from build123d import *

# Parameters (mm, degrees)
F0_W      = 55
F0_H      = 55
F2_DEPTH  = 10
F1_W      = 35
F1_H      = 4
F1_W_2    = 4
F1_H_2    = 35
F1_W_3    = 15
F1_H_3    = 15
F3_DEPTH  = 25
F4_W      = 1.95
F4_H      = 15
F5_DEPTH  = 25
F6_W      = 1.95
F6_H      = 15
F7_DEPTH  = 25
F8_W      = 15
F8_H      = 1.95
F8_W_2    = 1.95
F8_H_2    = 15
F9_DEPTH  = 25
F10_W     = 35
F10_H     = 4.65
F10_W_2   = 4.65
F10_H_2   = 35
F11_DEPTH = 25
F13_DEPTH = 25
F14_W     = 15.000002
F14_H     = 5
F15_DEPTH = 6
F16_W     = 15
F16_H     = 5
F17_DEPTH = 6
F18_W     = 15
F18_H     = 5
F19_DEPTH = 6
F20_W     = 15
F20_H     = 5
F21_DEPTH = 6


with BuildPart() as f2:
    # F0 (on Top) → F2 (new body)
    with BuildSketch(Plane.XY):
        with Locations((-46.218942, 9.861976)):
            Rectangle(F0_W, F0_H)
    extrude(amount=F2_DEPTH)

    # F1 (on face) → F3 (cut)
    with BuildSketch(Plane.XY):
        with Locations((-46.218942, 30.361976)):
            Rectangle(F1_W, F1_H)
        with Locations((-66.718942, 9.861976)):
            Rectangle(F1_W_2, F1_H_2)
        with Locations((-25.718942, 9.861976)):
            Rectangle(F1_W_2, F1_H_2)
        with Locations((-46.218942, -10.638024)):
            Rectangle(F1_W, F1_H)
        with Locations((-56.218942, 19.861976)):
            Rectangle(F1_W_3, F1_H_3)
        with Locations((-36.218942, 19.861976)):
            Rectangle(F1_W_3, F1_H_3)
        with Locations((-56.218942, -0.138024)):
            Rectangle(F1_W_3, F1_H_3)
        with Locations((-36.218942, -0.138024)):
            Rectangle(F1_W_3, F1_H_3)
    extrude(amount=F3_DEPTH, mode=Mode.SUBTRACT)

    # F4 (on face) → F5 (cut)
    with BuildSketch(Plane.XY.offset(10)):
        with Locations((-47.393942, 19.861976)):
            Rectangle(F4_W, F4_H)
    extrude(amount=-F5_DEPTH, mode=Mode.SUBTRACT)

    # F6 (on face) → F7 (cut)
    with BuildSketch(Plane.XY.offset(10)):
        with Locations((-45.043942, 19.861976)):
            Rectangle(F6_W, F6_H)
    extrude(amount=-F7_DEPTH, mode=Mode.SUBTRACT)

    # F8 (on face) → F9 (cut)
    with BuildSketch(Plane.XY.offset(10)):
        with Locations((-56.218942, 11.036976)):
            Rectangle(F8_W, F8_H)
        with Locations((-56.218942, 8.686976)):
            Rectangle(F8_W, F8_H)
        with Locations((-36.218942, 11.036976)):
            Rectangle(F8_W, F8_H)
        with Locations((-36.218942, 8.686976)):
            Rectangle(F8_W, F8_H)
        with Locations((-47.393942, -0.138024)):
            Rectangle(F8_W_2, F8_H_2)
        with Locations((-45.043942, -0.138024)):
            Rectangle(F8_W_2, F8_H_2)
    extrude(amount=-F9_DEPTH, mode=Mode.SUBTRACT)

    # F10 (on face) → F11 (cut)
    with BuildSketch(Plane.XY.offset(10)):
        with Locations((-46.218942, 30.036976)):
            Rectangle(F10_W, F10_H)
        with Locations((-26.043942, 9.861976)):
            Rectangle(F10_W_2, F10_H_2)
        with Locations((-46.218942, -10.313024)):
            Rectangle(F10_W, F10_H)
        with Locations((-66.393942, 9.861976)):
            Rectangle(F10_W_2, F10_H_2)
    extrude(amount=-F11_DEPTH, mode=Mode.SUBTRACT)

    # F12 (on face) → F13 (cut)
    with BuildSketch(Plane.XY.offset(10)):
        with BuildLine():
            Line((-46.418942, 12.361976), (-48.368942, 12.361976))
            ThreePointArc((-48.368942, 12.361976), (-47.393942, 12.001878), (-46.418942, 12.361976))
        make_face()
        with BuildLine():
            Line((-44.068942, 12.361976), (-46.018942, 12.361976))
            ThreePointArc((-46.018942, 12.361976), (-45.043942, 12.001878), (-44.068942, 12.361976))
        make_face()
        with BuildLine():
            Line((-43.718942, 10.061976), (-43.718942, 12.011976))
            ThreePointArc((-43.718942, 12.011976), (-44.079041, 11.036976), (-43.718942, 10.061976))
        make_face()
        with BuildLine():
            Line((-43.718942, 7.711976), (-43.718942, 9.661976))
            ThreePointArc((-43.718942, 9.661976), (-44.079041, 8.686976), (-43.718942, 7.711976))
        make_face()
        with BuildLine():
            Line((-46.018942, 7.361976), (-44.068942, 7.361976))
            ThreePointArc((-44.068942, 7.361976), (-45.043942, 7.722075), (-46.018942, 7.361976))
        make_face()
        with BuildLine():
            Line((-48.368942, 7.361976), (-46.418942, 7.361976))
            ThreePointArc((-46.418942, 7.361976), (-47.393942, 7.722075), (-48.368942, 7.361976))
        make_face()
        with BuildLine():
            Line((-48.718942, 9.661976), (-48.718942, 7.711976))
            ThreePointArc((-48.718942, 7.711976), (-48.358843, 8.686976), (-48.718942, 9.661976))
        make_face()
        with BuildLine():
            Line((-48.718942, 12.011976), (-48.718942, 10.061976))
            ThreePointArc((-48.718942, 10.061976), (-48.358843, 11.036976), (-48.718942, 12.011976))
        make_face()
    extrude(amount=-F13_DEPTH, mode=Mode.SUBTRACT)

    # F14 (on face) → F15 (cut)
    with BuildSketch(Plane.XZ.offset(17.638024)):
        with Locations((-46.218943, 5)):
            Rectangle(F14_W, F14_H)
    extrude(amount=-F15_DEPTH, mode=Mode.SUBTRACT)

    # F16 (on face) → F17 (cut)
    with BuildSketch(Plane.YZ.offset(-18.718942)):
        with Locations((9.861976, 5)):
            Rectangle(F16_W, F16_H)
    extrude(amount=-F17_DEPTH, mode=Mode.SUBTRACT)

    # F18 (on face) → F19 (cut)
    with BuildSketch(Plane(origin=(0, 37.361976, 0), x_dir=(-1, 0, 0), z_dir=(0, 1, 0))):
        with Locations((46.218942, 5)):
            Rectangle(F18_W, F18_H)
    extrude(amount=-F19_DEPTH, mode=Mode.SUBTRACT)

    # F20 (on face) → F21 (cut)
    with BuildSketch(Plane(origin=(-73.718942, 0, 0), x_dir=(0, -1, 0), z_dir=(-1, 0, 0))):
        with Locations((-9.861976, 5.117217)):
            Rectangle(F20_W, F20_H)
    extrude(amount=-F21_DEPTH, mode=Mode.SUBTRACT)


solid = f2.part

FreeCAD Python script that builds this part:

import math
import FreeCAD as App
import Part
import Sketcher

V = App.Vector
Q = App.Units.Quantity

doc = App.newDocument("Part")
body = doc.addObject("PartDesign::Body", "Body")

sketch1 = body.newObject("Sketcher::SketchObject", "Sketch")
sketch1.AttachmentSupport = (doc.getObject("XY_Plane"), [""])
sketch1.MapMode = "FlatFace"
sketch1.addGeometry(Part.LineSegment(V(-74, 37, 0), V(-74, -18, 0)), False)
sketch1.addGeometry(Part.LineSegment(V(-74, -18, 0), V(-19, -18, 0)), False)
sketch1.addGeometry(Part.LineSegment(V(-19, -18, 0), V(-19, 37, 0)), False)
sketch1.addGeometry(Part.LineSegment(V(-19, 37, 0), V(-74, 37, 0)), False)
sketch1.addConstraint(Sketcher.Constraint("Coincident", 0, 2, 1, 1))
sketch1.addConstraint(Sketcher.Constraint("Coincident", 1, 2, 2, 1))
sketch1.addConstraint(Sketcher.Constraint("Coincident", 2, 2, 3, 1))
sketch1.addConstraint(Sketcher.Constraint("Coincident", 3, 2, 0, 1))
sketch1.addConstraint(Sketcher.Constraint("Vertical", 0))
sketch1.addConstraint(Sketcher.Constraint("Horizontal", 1))
sketch1.addConstraint(Sketcher.Constraint("Vertical", 2))
sketch1.addConstraint(Sketcher.Constraint("Horizontal", 3))
sketch1.addConstraint(Sketcher.Constraint("Equal", 3, 0))
sketch1.addConstraint(Sketcher.Constraint("DistanceX", 1, 1, 1, 2, Q("55 mm")))
sketch1.addConstraint(Sketcher.Constraint("DistanceX", 0, 2, -1, 1, Q("73.718942 mm")))
sketch1.addConstraint(Sketcher.Constraint("DistanceY", 0, 2, -1, 1, Q("17.638024 mm")))
pad1 = body.newObject("PartDesign::Pad", "Pad")
pad1.Profile = sketch1
pad1.Length = 10

sketch2 = body.newObject("Sketcher::SketchObject", "Sketch001")
sketch2.AttachmentSupport = (doc.getObject("XY_Plane"), [""])
sketch2.MapMode = "FlatFace"
sketch2.addGeometry(Part.LineSegment(V(-63.7, 32.4, 0), V(-63.7, 28.4, 0)), False)
sketch2.addGeometry(Part.LineSegment(V(-63.7, 28.4, 0), V(-28.7, 28.4, 0)), False)
sketch2.addGeometry(Part.LineSegment(V(-28.7, 28.4, 0), V(-28.7, 32.4, 0)), False)
sketch2.addGeometry(Part.LineSegment(V(-28.7, 32.4, 0), V(-63.7, 32.4, 0)), False)
sketch2.addGeometry(Part.LineSegment(V(-68.7, 27.4, 0), V(-68.7, -7.6, 0)), False)
sketch2.addGeometry(Part.LineSegment(V(-68.7, -7.6, 0), V(-64.7, -7.6, 0)), False)
sketch2.addGeometry(Part.LineSegment(V(-64.7, -7.6, 0), V(-64.7, 27.4, 0)), False)
sketch2.addGeometry(Part.LineSegment(V(-64.7, 27.4, 0), V(-68.7, 27.4, 0)), False)
sketch2.addGeometry(Part.LineSegment(V(-27.7, 27.4, 0), V(-27.7, -7.6, 0)), False)
sketch2.addGeometry(Part.LineSegment(V(-27.7, -7.6, 0), V(-23.7, -7.6, 0)), False)
sketch2.addGeometry(Part.LineSegment(V(-23.7, -7.6, 0), V(-23.7, 27.4, 0)), False)
sketch2.addGeometry(Part.LineSegment(V(-23.7, 27.4, 0), V(-27.7, 27.4, 0)), False)
sketch2.addGeometry(Part.LineSegment(V(-63.7, -8.6, 0), V(-63.7, -12.6, 0)), False)
sketch2.addGeometry(Part.LineSegment(V(-63.7, -12.6, 0), V(-28.7, -12.6, 0)), False)
sketch2.addGeometry(Part.LineSegment(V(-28.7, -12.6, 0), V(-28.7, -8.6, 0)), False)
sketch2.addGeometry(Part.LineSegment(V(-28.7, -8.6, 0), V(-63.7, -8.6, 0)), False)
sketch2.addGeometry(Part.LineSegment(V(-63.7, 27.4, 0), V(-63.7, 12.4, 0)), False)
sketch2.addGeometry(Part.LineSegment(V(-63.7, 12.4, 0), V(-48.7, 12.4, 0)), False)
sketch2.addGeometry(Part.LineSegment(V(-48.7, 12.4, 0), V(-48.7, 27.4, 0)), False)
sketch2.addGeometry(Part.LineSegment(V(-48.7, 27.4, 0), V(-63.7, 27.4, 0)), False)
sketch2.addGeometry(Part.LineSegment(V(-43.7, 27.4, 0), V(-43.7, 12.4, 0)), False)
sketch2.addGeometry(Part.LineSegment(V(-43.7, 12.4, 0), V(-28.7, 12.4, 0)), False)
sketch2.addGeometry(Part.LineSegment(V(-28.7, 12.4, 0), V(-28.7, 27.4, 0)), False)
sketch2.addGeometry(Part.LineSegment(V(-28.7, 27.4, 0), V(-43.7, 27.4, 0)), False)
sketch2.addGeometry(Part.LineSegment(V(-63.7, 7.4, 0), V(-63.7, -7.6, 0)), False)
sketch2.addGeometry(Part.LineSegment(V(-63.7, -7.6, 0), V(-48.7, -7.6, 0)), False)
sketch2.addGeometry(Part.LineSegment(V(-48.7, -7.6, 0), V(-48.7, 7.4, 0)), False)
sketch2.addGeometry(Part.LineSegment(V(-48.7, 7.4, 0), V(-63.7, 7.4, 0)), False)
sketch2.addGeometry(Part.LineSegment(V(-43.7, 7.4, 0), V(-43.7, -7.6, 0)), False)
sketch2.addGeometry(Part.LineSegment(V(-43.7, -7.6, 0), V(-28.7, -7.6, 0)), False)
sketch2.addGeometry(Part.LineSegment(V(-28.7, -7.6, 0), V(-28.7, 7.4, 0)), False)
sketch2.addGeometry(Part.LineSegment(V(-28.7, 7.4, 0), V(-43.7, 7.4, 0)), False)
sketch2.addConstraint(Sketcher.Constraint("Coincident", 0, 2, 1, 1))
sketch2.addConstraint(Sketcher.Constraint("Coincident", 1, 2, 2, 1))
sketch2.addConstraint(Sketcher.Constraint("Coincident", 2, 2, 3, 1))
sketch2.addConstraint(Sketcher.Constraint("Coincident", 3, 2, 0, 1))
sketch2.addConstraint(Sketcher.Constraint("Coincident", 4, 2, 5, 1))
sketch2.addConstraint(Sketcher.Constraint("Coincident", 5, 2, 6, 1))
sketch2.addConstraint(Sketcher.Constraint("Coincident", 6, 2, 7, 1))
sketch2.addConstraint(Sketcher.Constraint("Coincident", 7, 2, 4, 1))
sketch2.addConstraint(Sketcher.Constraint("Coincident", 8, 2, 9, 1))
sketch2.addConstraint(Sketcher.Constraint("Coincident", 9, 2, 10, 1))
sketch2.addConstraint(Sketcher.Constraint("Coincident", 10, 2, 11, 1))
sketch2.addConstraint(Sketcher.Constraint("Coincident", 11, 2, 8, 1))
sketch2.addConstraint(Sketcher.Constraint("Coincident", 12, 2, 13, 1))
sketch2.addConstraint(Sketcher.Constraint("Coincident", 13, 2, 14, 1))
sketch2.addConstraint(Sketcher.Constraint("Coincident", 14, 2, 15, 1))
sketch2.addConstraint(Sketcher.Constraint("Coincident", 15, 2, 12, 1))
sketch2.addConstraint(Sketcher.Constraint("Coincident", 16, 2, 17, 1))
sketch2.addConstraint(Sketcher.Constraint("Coincident", 17, 2, 18, 1))
sketch2.addConstraint(Sketcher.Constraint("Coincident", 18, 2, 19, 1))
sketch2.addConstraint(Sketcher.Constraint("Coincident", 19, 2, 16, 1))
sketch2.addConstraint(Sketcher.Constraint("Coincident", 20, 2, 21, 1))
sketch2.addConstraint(Sketcher.Constraint("Coincident", 21, 2, 22, 1))
sketch2.addConstraint(Sketcher.Constraint("Coincident", 22, 2, 23, 1))
sketch2.addConstraint(Sketcher.Constraint("Coincident", 23, 2, 20, 1))
sketch2.addConstraint(Sketcher.Constraint("Coincident", 24, 2, 25, 1))
sketch2.addConstraint(Sketcher.Constraint("Coincident", 25, 2, 26, 1))
sketch2.addConstraint(Sketcher.Constraint("Coincident", 26, 2, 27, 1))
sketch2.addConstraint(Sketcher.Constraint("Coincident", 27, 2, 24, 1))
sketch2.addConstraint(Sketcher.Constraint("Coincident", 28, 2, 29, 1))
sketch2.addConstraint(Sketcher.Constraint("Coincident", 29, 2, 30, 1))
sketch2.addConstraint(Sketcher.Constraint("Coincident", 30, 2, 31, 1))
sketch2.addConstraint(Sketcher.Constraint("Coincident", 31, 2, 28, 1))
sketch2.addConstraint(Sketcher.Constraint("Vertical", 0))
sketch2.addConstraint(Sketcher.Constraint("Horizontal", 1))
sketch2.addConstraint(Sketcher.Constraint("Vertical", 2))
sketch2.addConstraint(Sketcher.Constraint("Horizontal", 3))
sketch2.addConstraint(Sketcher.Constraint("Vertical", 4))
sketch2.addConstraint(Sketcher.Constraint("Horizontal", 5))
sketch2.addConstraint(Sketcher.Constraint("Vertical", 6))
sketch2.addConstraint(Sketcher.Constraint("Horizontal", 7))
sketch2.addConstraint(Sketcher.Constraint("Vertical", 8))
sketch2.addConstraint(Sketcher.Constraint("Horizontal", 9))
sketch2.addConstraint(Sketcher.Constraint("Vertical", 10))
sketch2.addConstraint(Sketcher.Constraint("Horizontal", 11))
sketch2.addConstraint(Sketcher.Constraint("Vertical", 12))
sketch2.addConstraint(Sketcher.Constraint("Horizontal", 13))
sketch2.addConstraint(Sketcher.Constraint("Vertical", 14))
sketch2.addConstraint(Sketcher.Constraint("Horizontal", 15))
sketch2.addConstraint(Sketcher.Constraint("Vertical", 16))
sketch2.addConstraint(Sketcher.Constraint("Horizontal", 17))
sketch2.addConstraint(Sketcher.Constraint("Vertical", 18))
sketch2.addConstraint(Sketcher.Constraint("Horizontal", 19))
sketch2.addConstraint(Sketcher.Constraint("Vertical", 20))
sketch2.addConstraint(Sketcher.Constraint("Horizontal", 21))
sketch2.addConstraint(Sketcher.Constraint("Vertical", 22))
sketch2.addConstraint(Sketcher.Constraint("Horizontal", 23))
sketch2.addConstraint(Sketcher.Constraint("Vertical", 24))
sketch2.addConstraint(Sketcher.Constraint("Horizontal", 25))
sketch2.addConstraint(Sketcher.Constraint("Vertical", 26))
sketch2.addConstraint(Sketcher.Constraint("Horizontal", 27))
sketch2.addConstraint(Sketcher.Constraint("Vertical", 28))
sketch2.addConstraint(Sketcher.Constraint("Horizontal", 29))
sketch2.addConstraint(Sketcher.Constraint("Vertical", 30))
sketch2.addConstraint(Sketcher.Constraint("Horizontal", 31))
sketch2.addConstraint(Sketcher.Constraint("Horizontal", 5, 2, 8, 2))
sketch2.addConstraint(Sketcher.Constraint("Horizontal", 7, 2, 10, 2))
sketch2.addConstraint(Sketcher.Constraint("Horizontal", 11, 2, 18, 2))
sketch2.addConstraint(Sketcher.Constraint("Horizontal", 17, 2, 20, 2))
sketch2.addConstraint(Sketcher.Constraint("Horizontal", 19, 2, 22, 2))
sketch2.addConstraint(Sketcher.Constraint("Horizontal", 9, 2, 24, 2))
sketch2.addConstraint(Sketcher.Constraint("Horizontal", 25, 2, 28, 2))
sketch2.addConstraint(Sketcher.Constraint("Horizontal", 27, 2, 30, 2))
sketch2.addConstraint(Sketcher.Constraint("Vertical", 3, 2, 12, 2))
sketch2.addConstraint(Sketcher.Constraint("Vertical", 2, 2, 13, 2))
sketch2.addConstraint(Sketcher.Constraint("Vertical", 15, 2, 16, 2))
sketch2.addConstraint(Sketcher.Constraint("Vertical", 14, 2, 21, 2))
sketch2.addConstraint(Sketcher.Constraint("Vertical", 19, 2, 24, 2))
sketch2.addConstraint(Sketcher.Constraint("Vertical", 18, 2, 25, 2))
sketch2.addConstraint(Sketcher.Constraint("Vertical", 23, 2, 28, 2))
sketch2.addConstraint(Sketcher.Constraint("Vertical", 22, 2, 29, 2))
sketch2.addConstraint(Sketcher.Constraint("Equal", 7, 9))
sketch2.addConstraint(Sketcher.Constraint("Equal", 19, 21))
sketch2.addConstraint(Sketcher.Constraint("Equal", 11, 0))
sketch2.addConstraint(Sketcher.Constraint("Equal", 15, 4))
sketch2.addConstraint(Sketcher.Constraint("Equal", 2, 12))
sketch2.addConstraint(Sketcher.Constraint("Equal", 31, 16))
sketch2.addConstraint(Sketcher.Constraint("Equal", 22, 24))
sketch2.addConstraint(Sketcher.Constraint("DistanceX", 1, 1, 1, 2, Q("35 mm")))
sketch2.addConstraint(Sketcher.Constraint("DistanceX", 5, 1, 5, 2, Q("4 mm")))
sketch2.addConstraint(Sketcher.Constraint("DistanceX", 17, 1, 17, 2, Q("15 mm")))
sketch2.addConstraint(Sketcher.Constraint("DistanceX", 4, 2, 0, 2, Q("5 mm")))
sketch2.addConstraint(Sketcher.Constraint("DistanceY", 4, 2, 0, 2, Q("36 mm")))
sketch2.addConstraint(Sketcher.Constraint("DistanceX", 1, 2, 8, 2, Q("1 mm")))
sketch2.addConstraint(Sketcher.Constraint("DistanceY", 12, 2, 5, 2, Q("5 mm")))
sketch2.addConstraint(Sketcher.Constraint("DistanceX", 0, 2, -1, 1, Q("63.718942 mm")))
sketch2.addConstraint(Sketcher.Constraint("DistanceY", -1, 1, 0, 2, Q("28.361976 mm")))
pocket1 = body.newObject("PartDesign::Pocket", "Pocket")
pocket1.Profile = sketch2
pocket1.Length = 25
pocket1.Reversed = True

sketch3 = body.newObject("Sketcher::SketchObject", "Sketch002")
sketch3.AttachmentSupport = (doc.getObject("XY_Plane"), [""])
sketch3.MapMode = "FlatFace"
sketch3.AttachmentOffset = App.Placement(V(0, 0, 10), App.Rotation())
sketch3.addGeometry(Part.LineSegment(V(-48.4, 27.4, 0), V(-48.4, 12.4, 0)), False)
sketch3.addGeometry(Part.LineSegment(V(-48.4, 12.4, 0), V(-46.4, 12.4, 0)), False)
sketch3.addGeometry(Part.LineSegment(V(-46.4, 12.4, 0), V(-46.4, 27.4, 0)), False)
sketch3.addGeometry(Part.LineSegment(V(-46.4, 27.4, 0), V(-48.4, 27.4, 0)), False)
sketch3.addConstraint(Sketcher.Constraint("Coincident", 0, 2, 1, 1))
sketch3.addConstraint(Sketcher.Constraint("Coincident", 1, 2, 2, 1))
sketch3.addConstraint(Sketcher.Constraint("Coincident", 2, 2, 3, 1))
sketch3.addConstraint(Sketcher.Constraint("Coincident", 3, 2, 0, 1))
sketch3.addConstraint(Sketcher.Constraint("Vertical", 0))
sketch3.addConstraint(Sketcher.Constraint("Horizontal", 1))
sketch3.addConstraint(Sketcher.Constraint("Vertical", 2))
sketch3.addConstraint(Sketcher.Constraint("Horizontal", 3))
sketch3.addConstraint(Sketcher.Constraint("DistanceY", 0, 2, 0, 1, Q("15 mm")))
sketch3.addConstraint(Sketcher.Constraint("DistanceX", 1, 1, 1, 2, Q("1.95 mm")))
sketch3.addConstraint(Sketcher.Constraint("DistanceX", 0, 2, -1, 1, Q("48.368942 mm")))
sketch3.addConstraint(Sketcher.Constraint("DistanceY", -1, 1, 0, 2, Q("12.361976 mm")))
pocket2 = body.newObject("PartDesign::Pocket", "Pocket001")
pocket2.Profile = sketch3
pocket2.Length = 25

sketch4 = body.newObject("Sketcher::SketchObject", "Sketch003")
sketch4.AttachmentSupport = (doc.getObject("XY_Plane"), [""])
sketch4.MapMode = "FlatFace"
sketch4.AttachmentOffset = App.Placement(V(0, 0, 10), App.Rotation())
sketch4.addGeometry(Part.LineSegment(V(-46, 27.4, 0), V(-46, 12.4, 0)), False)
sketch4.addGeometry(Part.LineSegment(V(-46, 12.4, 0), V(-44.1, 12.4, 0)), False)
sketch4.addGeometry(Part.LineSegment(V(-44.1, 12.4, 0), V(-44.1, 27.4, 0)), False)
sketch4.addGeometry(Part.LineSegment(V(-44.1, 27.4, 0), V(-46, 27.4, 0)), False)
sketch4.addConstraint(Sketcher.Constraint("Coincident", 0, 2, 1, 1))
sketch4.addConstraint(Sketcher.Constraint("Coincident", 1, 2, 2, 1))
sketch4.addConstraint(Sketcher.Constraint("Coincident", 2, 2, 3, 1))
sketch4.addConstraint(Sketcher.Constraint("Coincident", 3, 2, 0, 1))
sketch4.addConstraint(Sketcher.Constraint("Vertical", 0))
sketch4.addConstraint(Sketcher.Constraint("Horizontal", 1))
sketch4.addConstraint(Sketcher.Constraint("Vertical", 2))
sketch4.addConstraint(Sketcher.Constraint("Horizontal", 3))
sketch4.addConstraint(Sketcher.Constraint("DistanceY", 0, 2, 0, 1, Q("15 mm")))
sketch4.addConstraint(Sketcher.Constraint("DistanceX", 1, 1, 1, 2, Q("1.95 mm")))
sketch4.addConstraint(Sketcher.Constraint("DistanceX", 0, 2, -1, 1, Q("46.018942 mm")))
sketch4.addConstraint(Sketcher.Constraint("DistanceY", -1, 1, 0, 2, Q("12.361976 mm")))
pocket3 = body.newObject("PartDesign::Pocket", "Pocket002")
pocket3.Profile = sketch4
pocket3.Length = 25

sketch5 = body.newObject("Sketcher::SketchObject", "Sketch004")
sketch5.AttachmentSupport = (doc.getObject("XY_Plane"), [""])
sketch5.MapMode = "FlatFace"
sketch5.AttachmentOffset = App.Placement(V(0, 0, 10), App.Rotation())
sketch5.addGeometry(Part.LineSegment(V(-63.7, 12, 0), V(-63.7, 10.1, 0)), False)
sketch5.addGeometry(Part.LineSegment(V(-63.7, 10.1, 0), V(-48.7, 10.1, 0)), False)
sketch5.addGeometry(Part.LineSegment(V(-48.7, 10.1, 0), V(-48.7, 12, 0)), False)
sketch5.addGeometry(Part.LineSegment(V(-48.7, 12, 0), V(-63.7, 12, 0)), False)
sketch5.addGeometry(Part.LineSegment(V(-63.7, 9.7, 0), V(-63.7, 7.7, 0)), False)
sketch5.addGeometry(Part.LineSegment(V(-63.7, 7.7, 0), V(-48.7, 7.7, 0)), False)
sketch5.addGeometry(Part.LineSegment(V(-48.7, 7.7, 0), V(-48.7, 9.7, 0)), False)
sketch5.addGeometry(Part.LineSegment(V(-48.7, 9.7, 0), V(-63.7, 9.7, 0)), False)
sketch5.addGeometry(Part.LineSegment(V(-43.7, 12, 0), V(-43.7, 10.1, 0)), False)
sketch5.addGeometry(Part.LineSegment(V(-43.7, 10.1, 0), V(-28.7, 10.1, 0)), False)
sketch5.addGeometry(Part.LineSegment(V(-28.7, 10.1, 0), V(-28.7, 12, 0)), False)
sketch5.addGeometry(Part.LineSegment(V(-28.7, 12, 0), V(-43.7, 12, 0)), False)
sketch5.addGeometry(Part.LineSegment(V(-43.7, 9.7, 0), V(-43.7, 7.7, 0)), False)
sketch5.addGeometry(Part.LineSegment(V(-43.7, 7.7, 0), V(-28.7, 7.7, 0)), False)
sketch5.addGeometry(Part.LineSegment(V(-28.7, 7.7, 0), V(-28.7, 9.7, 0)), False)
sketch5.addGeometry(Part.LineSegment(V(-28.7, 9.7, 0), V(-43.7, 9.7, 0)), False)
sketch5.addGeometry(Part.LineSegment(V(-48.4, 7.4, 0), V(-48.4, -7.6, 0)), False)
sketch5.addGeometry(Part.LineSegment(V(-48.4, -7.6, 0), V(-46.4, -7.6, 0)), False)
sketch5.addGeometry(Part.LineSegment(V(-46.4, -7.6, 0), V(-46.4, 7.4, 0)), False)
sketch5.addGeometry(Part.LineSegment(V(-46.4, 7.4, 0), V(-48.4, 7.4, 0)), False)
sketch5.addGeometry(Part.LineSegment(V(-46, 7.4, 0), V(-46, -7.6, 0)), False)
sketch5.addGeometry(Part.LineSegment(V(-46, -7.6, 0), V(-44.1, -7.6, 0)), False)
sketch5.addGeometry(Part.LineSegment(V(-44.1, -7.6, 0), V(-44.1, 7.4, 0)), False)
sketch5.addGeometry(Part.LineSegment(V(-44.1, 7.4, 0), V(-46, 7.4, 0)), False)
sketch5.addConstraint(Sketcher.Constraint("Coincident", 0, 2, 1, 1))
sketch5.addConstraint(Sketcher.Constraint("Coincident", 1, 2, 2, 1))
sketch5.addConstraint(Sketcher.Constraint("Coincident", 2, 2, 3, 1))
sketch5.addConstraint(Sketcher.Constraint("Coincident", 3, 2, 0, 1))
sketch5.addConstraint(Sketcher.Constraint("Coincident", 4, 2, 5, 1))
sketch5.addConstraint(Sketcher.Constraint("Coincident", 5, 2, 6, 1))
sketch5.addConstraint(Sketcher.Constraint("Coincident", 6, 2, 7, 1))
sketch5.addConstraint(Sketcher.Constraint("Coincident", 7, 2, 4, 1))
sketch5.addConstraint(Sketcher.Constraint("Coincident", 8, 2, 9, 1))
sketch5.addConstraint(Sketcher.Constraint("Coincident", 9, 2, 10, 1))
sketch5.addConstraint(Sketcher.Constraint("Coincident", 10, 2, 11, 1))
sketch5.addConstraint(Sketcher.Constraint("Coincident", 11, 2, 8, 1))
sketch5.addConstraint(Sketcher.Constraint("Coincident", 12, 2, 13, 1))
sketch5.addConstraint(Sketcher.Constraint("Coincident", 13, 2, 14, 1))
sketch5.addConstraint(Sketcher.Constraint("Coincident", 14, 2, 15, 1))
sketch5.addConstraint(Sketcher.Constraint("Coincident", 15, 2, 12, 1))
sketch5.addConstraint(Sketcher.Constraint("Coincident", 16, 2, 17, 1))
sketch5.addConstraint(Sketcher.Constraint("Coincident", 17, 2, 18, 1))
sketch5.addConstraint(Sketcher.Constraint("Coincident", 18, 2, 19, 1))
sketch5.addConstraint(Sketcher.Constraint("Coincident", 19, 2, 16, 1))
sketch5.addConstraint(Sketcher.Constraint("Coincident", 20, 2, 21, 1))
sketch5.addConstraint(Sketcher.Constraint("Coincident", 21, 2, 22, 1))
sketch5.addConstraint(Sketcher.Constraint("Coincident", 22, 2, 23, 1))
sketch5.addConstraint(Sketcher.Constraint("Coincident", 23, 2, 20, 1))
sketch5.addConstraint(Sketcher.Constraint("Vertical", 0))
sketch5.addConstraint(Sketcher.Constraint("Horizontal", 1))
sketch5.addConstraint(Sketcher.Constraint("Vertical", 2))
sketch5.addConstraint(Sketcher.Constraint("Horizontal", 3))
sketch5.addConstraint(Sketcher.Constraint("Vertical", 4))
sketch5.addConstraint(Sketcher.Constraint("Horizontal", 5))
sketch5.addConstraint(Sketcher.Constraint("Vertical", 6))
sketch5.addConstraint(Sketcher.Constraint("Horizontal", 7))
sketch5.addConstraint(Sketcher.Constraint("Vertical", 8))
sketch5.addConstraint(Sketcher.Constraint("Horizontal", 9))
sketch5.addConstraint(Sketcher.Constraint("Vertical", 10))
sketch5.addConstraint(Sketcher.Constraint("Horizontal", 11))
sketch5.addConstraint(Sketcher.Constraint("Vertical", 12))
sketch5.addConstraint(Sketcher.Constraint("Horizontal", 13))
sketch5.addConstraint(Sketcher.Constraint("Vertical", 14))
sketch5.addConstraint(Sketcher.Constraint("Horizontal", 15))
sketch5.addConstraint(Sketcher.Constraint("Vertical", 16))
sketch5.addConstraint(Sketcher.Constraint("Horizontal", 17))
sketch5.addConstraint(Sketcher.Constraint("Vertical", 18))
sketch5.addConstraint(Sketcher.Constraint("Horizontal", 19))
sketch5.addConstraint(Sketcher.Constraint("Vertical", 20))
sketch5.addConstraint(Sketcher.Constraint("Horizontal", 21))
sketch5.addConstraint(Sketcher.Constraint("Vertical", 22))
sketch5.addConstraint(Sketcher.Constraint("Horizontal", 23))
sketch5.addConstraint(Sketcher.Constraint("Horizontal", 1, 2, 8, 2))
sketch5.addConstraint(Sketcher.Constraint("Horizontal", 3, 2, 10, 2))
sketch5.addConstraint(Sketcher.Constraint("Horizontal", 5, 2, 12, 2))
sketch5.addConstraint(Sketcher.Constraint("Horizontal", 7, 2, 14, 2))
sketch5.addConstraint(Sketcher.Constraint("Horizontal", 17, 2, 20, 2))
sketch5.addConstraint(Sketcher.Constraint("Horizontal", 19, 2, 22, 2))
sketch5.addConstraint(Sketcher.Constraint("Vertical", 3, 2, 4, 2))
sketch5.addConstraint(Sketcher.Constraint("Vertical", 2, 2, 5, 2))
sketch5.addConstraint(Sketcher.Constraint("Vertical", 11, 2, 12, 2))
sketch5.addConstraint(Sketcher.Constraint("Vertical", 10, 2, 13, 2))
sketch5.addConstraint(Sketcher.Constraint("Equal", 7, 9))
sketch5.addConstraint(Sketcher.Constraint("Equal", 19, 21))
sketch5.addConstraint(Sketcher.Constraint("Equal", 23, 0))
sketch5.addConstraint(Sketcher.Constraint("Equal", 2, 4))
sketch5.addConstraint(Sketcher.Constraint("Equal", 15, 16))
sketch5.addConstraint(Sketcher.Constraint("DistanceX", 1, 1, 1, 2, Q("15 mm")))
sketch5.addConstraint(Sketcher.Constraint("DistanceX", 1, 2, 8, 2, Q("5 mm")))
sketch5.addConstraint(Sketcher.Constraint("DistanceX", 17, 1, 17, 2, Q("1.95 mm")))
sketch5.addConstraint(Sketcher.Constraint("DistanceY", 4, 2, 3, 2, Q("4.3 mm")))
sketch5.addConstraint(Sketcher.Constraint("DistanceY", 16, 2, 6, 2, Q("17.3 mm")))
sketch5.addConstraint(Sketcher.Constraint("DistanceX", 5, 2, 17, 2, Q("2.3 mm")))
sketch5.addConstraint(Sketcher.Constraint("DistanceX", 17, 2, 20, 2, Q("0.4 mm")))
sketch5.addConstraint(Sketcher.Constraint("DistanceX", 0, 2, -1, 1, Q("63.718942 mm")))
sketch5.addConstraint(Sketcher.Constraint("DistanceY", -1, 1, 0, 2, Q("10.061976 mm")))
pocket4 = body.newObject("PartDesign::Pocket", "Pocket003")
pocket4.Profile = sketch5
pocket4.Length = 25

sketch6 = body.newObject("Sketcher::SketchObject", "Sketch005")
sketch6.AttachmentSupport = (doc.getObject("XY_Plane"), [""])
sketch6.MapMode = "FlatFace"
sketch6.AttachmentOffset = App.Placement(V(0, 0, 10), App.Rotation())
sketch6.addGeometry(Part.LineSegment(V(-63.7, 32.4, 0), V(-63.7, 27.7, 0)), False)
sketch6.addGeometry(Part.LineSegment(V(-63.7, 27.7, 0), V(-28.7, 27.7, 0)), False)
sketch6.addGeometry(Part.LineSegment(V(-28.7, 27.7, 0), V(-28.7, 32.4, 0)), False)
sketch6.addGeometry(Part.LineSegment(V(-28.7, 32.4, 0), V(-63.7, 32.4, 0)), False)
sketch6.addGeometry(Part.LineSegment(V(-28.4, 27.4, 0), V(-28.4, -7.6, 0)), False)
sketch6.addGeometry(Part.LineSegment(V(-28.4, -7.6, 0), V(-23.7, -7.6, 0)), False)
sketch6.addGeometry(Part.LineSegment(V(-23.7, -7.6, 0), V(-23.7, 27.4, 0)), False)
sketch6.addGeometry(Part.LineSegment(V(-23.7, 27.4, 0), V(-28.4, 27.4, 0)), False)
sketch6.addGeometry(Part.LineSegment(V(-63.7, -8, 0), V(-63.7, -12.6, 0)), False)
sketch6.addGeometry(Part.LineSegment(V(-63.7, -12.6, 0), V(-28.7, -12.6, 0)), False)
sketch6.addGeometry(Part.LineSegment(V(-28.7, -12.6, 0), V(-28.7, -8, 0)), False)
sketch6.addGeometry(Part.LineSegment(V(-28.7, -8, 0), V(-63.7, -8, 0)), False)
sketch6.addGeometry(Part.LineSegment(V(-68.7, 27.4, 0), V(-68.7, -7.6, 0)), False)
sketch6.addGeometry(Part.LineSegment(V(-68.7, -7.6, 0), V(-64.1, -7.6, 0)), False)
sketch6.addGeometry(Part.LineSegment(V(-64.1, -7.6, 0), V(-64.1, 27.4, 0)), False)
sketch6.addGeometry(Part.LineSegment(V(-64.1, 27.4, 0), V(-68.7, 27.4, 0)), False)
sketch6.addConstraint(Sketcher.Constraint("Coincident", 0, 2, 1, 1))
sketch6.addConstraint(Sketcher.Constraint("Coincident", 1, 2, 2, 1))
sketch6.addConstraint(Sketcher.Constraint("Coincident", 2, 2, 3, 1))
sketch6.addConstraint(Sketcher.Constraint("Coincident", 3, 2, 0, 1))
sketch6.addConstraint(Sketcher.Constraint("Coincident", 4, 2, 5, 1))
sketch6.addConstraint(Sketcher.Constraint("Coincident", 5, 2, 6, 1))
sketch6.addConstraint(Sketcher.Constraint("Coincident", 6, 2, 7, 1))
sketch6.addConstraint(Sketcher.Constraint("Coincident", 7, 2, 4, 1))
sketch6.addConstraint(Sketcher.Constraint("Coincident", 8, 2, 9, 1))
sketch6.addConstraint(Sketcher.Constraint("Coincident", 9, 2, 10, 1))
sketch6.addConstraint(Sketcher.Constraint("Coincident", 10, 2, 11, 1))
sketch6.addConstraint(Sketcher.Constraint("Coincident", 11, 2, 8, 1))
sketch6.addConstraint(Sketcher.Constraint("Coincident", 12, 2, 13, 1))
sketch6.addConstraint(Sketcher.Constraint("Coincident", 13, 2, 14, 1))
sketch6.addConstraint(Sketcher.Constraint("Coincident", 14, 2, 15, 1))
sketch6.addConstraint(Sketcher.Constraint("Coincident", 15, 2, 12, 1))
sketch6.addConstraint(Sketcher.Constraint("Vertical", 0))
sketch6.addConstraint(Sketcher.Constraint("Horizontal", 1))
sketch6.addConstraint(Sketcher.Constraint("Vertical", 2))
sketch6.addConstraint(Sketcher.Constraint("Horizontal", 3))
sketch6.addConstraint(Sketcher.Constraint("Vertical", 4))
sketch6.addConstraint(Sketcher.Constraint("Horizontal", 5))
sketch6.addConstraint(Sketcher.Constraint("Vertical", 6))
sketch6.addConstraint(Sketcher.Constraint("Horizontal", 7))
sketch6.addConstraint(Sketcher.Constraint("Vertical", 8))
sketch6.addConstraint(Sketcher.Constraint("Horizontal", 9))
sketch6.addConstraint(Sketcher.Constraint("Vertical", 10))
sketch6.addConstraint(Sketcher.Constraint("Horizontal", 11))
sketch6.addConstraint(Sketcher.Constraint("Vertical", 12))
sketch6.addConstraint(Sketcher.Constraint("Horizontal", 13))
sketch6.addConstraint(Sketcher.Constraint("Vertical", 14))
sketch6.addConstraint(Sketcher.Constraint("Horizontal", 15))
sketch6.addConstraint(Sketcher.Constraint("Horizontal", 5, 2, 12, 2))
sketch6.addConstraint(Sketcher.Constraint("Horizontal", 7, 2, 14, 2))
sketch6.addConstraint(Sketcher.Constraint("Vertical", 3, 2, 8, 2))
sketch6.addConstraint(Sketcher.Constraint("Vertical", 2, 2, 9, 2))
sketch6.addConstraint(Sketcher.Constraint("Equal", 7, 13))
sketch6.addConstraint(Sketcher.Constraint("Equal", 15, 0))
sketch6.addConstraint(Sketcher.Constraint("Equal", 11, 4))
sketch6.addConstraint(Sketcher.Constraint("Equal", 2, 8))
sketch6.addConstraint(Sketcher.Constraint("DistanceX", 1, 1, 1, 2, Q("35 mm")))
sketch6.addConstraint(Sketcher.Constraint("DistanceY", 4, 2, 2, 2, Q("40 mm")))
sketch6.addConstraint(Sketcher.Constraint("DistanceX", 1, 2, 5, 2, Q("5 mm")))
sketch6.addConstraint(Sketcher.Constraint("DistanceY", 8, 2, 4, 2, Q("5 mm")))
sketch6.addConstraint(Sketcher.Constraint("DistanceX", 12, 2, 11, 2, Q("5 mm")))
sketch6.addConstraint(Sketcher.Constraint("DistanceX", 5, 1, 5, 2, Q("4.65 mm")))
sketch6.addConstraint(Sketcher.Constraint("DistanceX", 0, 2, -1, 1, Q("63.718942 mm")))
sketch6.addConstraint(Sketcher.Constraint("DistanceY", -1, 1, 0, 2, Q("27.711976 mm")))
pocket5 = body.newObject("PartDesign::Pocket", "Pocket004")
pocket5.Profile = sketch6
pocket5.Length = 25

sketch7 = body.newObject("Sketcher::SketchObject", "Sketch006")
sketch7.AttachmentSupport = (doc.getObject("XY_Plane"), [""])
sketch7.MapMode = "FlatFace"
sketch7.AttachmentOffset = App.Placement(V(0, 0, 10), App.Rotation())
sketch7.addGeometry(Part.LineSegment(V(-46.4, 12.4, 0), V(-48.4, 12.4, 0)), False)
sketch7.addGeometry(Part.ArcOfCircle(Part.Circle(V(-47.4, 13.5, 0), V(0, 0, 1), 1.5), math.radians(-131), math.radians(-49)), False)
sketch7.addGeometry(Part.LineSegment(V(-44.1, 12.4, 0), V(-46, 12.4, 0)), False)
sketch7.addGeometry(Part.ArcOfCircle(Part.Circle(V(-45, 13.5, 0), V(0, 0, 1), 1.5), math.radians(-131), math.radians(-49)), False)
sketch7.addGeometry(Part.LineSegment(V(-43.7, 10.1, 0), V(-43.7, 12, 0)), False)
sketch7.addGeometry(Part.ArcOfCircle(Part.Circle(V(-42.6, 11, 0), V(0, 0, 1), 1.5), math.radians(139), math.radians(221)), False)
sketch7.addGeometry(Part.LineSegment(V(-43.7, 7.7, 0), V(-43.7, 9.7, 0)), False)
sketch7.addGeometry(Part.ArcOfCircle(Part.Circle(V(-42.6, 8.7, 0), V(0, 0, 1), 1.5), math.radians(139), math.radians(221)), False)
sketch7.addGeometry(Part.LineSegment(V(-46, 7.4, 0), V(-44.1, 7.4, 0)), False)
sketch7.addGeometry(Part.ArcOfCircle(Part.Circle(V(-45, 6.2, 0), V(0, 0, 1), 1.5), math.radians(49), math.radians(131)), False)
sketch7.addGeometry(Part.LineSegment(V(-48.4, 7.4, 0), V(-46.4, 7.4, 0)), False)
sketch7.addGeometry(Part.ArcOfCircle(Part.Circle(V(-47.4, 6.2, 0), V(0, 0, 1), 1.5), math.radians(49), math.radians(131)), False)
sketch7.addGeometry(Part.LineSegment(V(-48.7, 9.7, 0), V(-48.7, 7.7, 0)), False)
sketch7.addGeometry(Part.ArcOfCircle(Part.Circle(V(-49.9, 8.7, 0), V(0, 0, 1), 1.5), math.radians(-41), math.radians(41)), False)
sketch7.addGeometry(Part.LineSegment(V(-48.7, 12, 0), V(-48.7, 10.1, 0)), False)
sketch7.addGeometry(Part.ArcOfCircle(Part.Circle(V(-49.9, 11, 0), V(0, 0, 1), 1.5), math.radians(-41), math.radians(41)), False)
sketch7.addConstraint(Sketcher.Constraint("Coincident", 0, 1, 1, 2))
sketch7.addConstraint(Sketcher.Constraint("Coincident", 1, 1, 0, 2))
sketch7.addConstraint(Sketcher.Constraint("Coincident", 2, 1, 3, 2))
sketch7.addConstraint(Sketcher.Constraint("Coincident", 3, 1, 2, 2))
sketch7.addConstraint(Sketcher.Constraint("Coincident", 4, 1, 5, 2))
sketch7.addConstraint(Sketcher.Constraint("Coincident", 5, 1, 4, 2))
sketch7.addConstraint(Sketcher.Constraint("Coincident", 6, 1, 7, 2))
sketch7.addConstraint(Sketcher.Constraint("Coincident", 7, 1, 6, 2))
sketch7.addConstraint(Sketcher.Constraint("Coincident", 8, 1, 9, 2))
sketch7.addConstraint(Sketcher.Constraint("Coincident", 9, 1, 8, 2))
sketch7.addConstraint(Sketcher.Constraint("Coincident", 10, 1, 11, 2))
sketch7.addConstraint(Sketcher.Constraint("Coincident", 11, 1, 10, 2))
sketch7.addConstraint(Sketcher.Constraint("Coincident", 12, 1, 13, 2))
sketch7.addConstraint(Sketcher.Constraint("Coincident", 13, 1, 12, 2))
sketch7.addConstraint(Sketcher.Constraint("Coincident", 14, 1, 15, 2))
sketch7.addConstraint(Sketcher.Constraint("Coincident", 15, 1, 14, 2))
sketch7.addConstraint(Sketcher.Constraint("Horizontal", 0))
sketch7.addConstraint(Sketcher.Constraint("Horizontal", 2))
sketch7.addConstraint(Sketcher.Constraint("Vertical", 4))
sketch7.addConstraint(Sketcher.Constraint("Vertical", 6))
sketch7.addConstraint(Sketcher.Constraint("Horizontal", 8))
sketch7.addConstraint(Sketcher.Constraint("Horizontal", 10))
sketch7.addConstraint(Sketcher.Constraint("Vertical", 12))
sketch7.addConstraint(Sketcher.Constraint("Vertical", 14))
sketch7.addConstraint(Sketcher.Constraint("Equal", 1, 3))
sketch7.addConstraint(Sketcher.Constraint("Equal", 5, 7))
sketch7.addConstraint(Sketcher.Constraint("Equal", 7, 9))
sketch7.addConstraint(Sketcher.Constraint("Equal", 9, 11))
sketch7.addConstraint(Sketcher.Constraint("Equal", 11, 13))
sketch7.addConstraint(Sketcher.Constraint("Equal", 13, 15))
sketch7.addConstraint(Sketcher.Constraint("Horizontal", 1, 3, 3, 3))
sketch7.addConstraint(Sketcher.Constraint("Horizontal", 9, 3, 11, 3))
sketch7.addConstraint(Sketcher.Constraint("Horizontal", 7, 3, 13, 3))
sketch7.addConstraint(Sketcher.Constraint("Horizontal", 5, 3, 15, 3))
sketch7.addConstraint(Sketcher.Constraint("Horizontal", 1, 1, 2, 1))
sketch7.addConstraint(Sketcher.Constraint("Horizontal", 9, 1, 10, 1))
sketch7.addConstraint(Sketcher.Constraint("Horizontal", 7, 1, 12, 1))
sketch7.addConstraint(Sketcher.Constraint("Horizontal", 5, 1, 14, 1))
sketch7.addConstraint(Sketcher.Constraint("Vertical", 5, 3, 7, 3))
sketch7.addConstraint(Sketcher.Constraint("Vertical", 3, 3, 9, 3))
sketch7.addConstraint(Sketcher.Constraint("Vertical", 1, 3, 11, 3))
sketch7.addConstraint(Sketcher.Constraint("Vertical", 13, 3, 15, 3))
sketch7.addConstraint(Sketcher.Constraint("Vertical", 5, 1, 6, 1))
sketch7.addConstraint(Sketcher.Constraint("Vertical", 3, 1, 8, 1))
sketch7.addConstraint(Sketcher.Constraint("Equal", 10, 4))
sketch7.addConstraint(Sketcher.Constraint("Radius", 5, Q("1.499999 mm")))
sketch7.addConstraint(Sketcher.Constraint("DistanceX", 0, 2, 0, 1, Q("1.95 mm")))
sketch7.addConstraint(Sketcher.Constraint("DistanceX", 0, 1, 3, 1, Q("0.4 mm")))
sketch7.addConstraint(Sketcher.Constraint("DistanceY", 4, 1, 2, 1, Q("2.3 mm")))
sketch7.addConstraint(Sketcher.Constraint("DistanceX", 3, 1, 4, 1, Q("2.3 mm")))
sketch7.addConstraint(Sketcher.Constraint("DistanceY", 7, 1, 4, 1, Q("0.4 mm")))
sketch7.addConstraint(Sketcher.Constraint("DistanceY", 8, 1, 7, 1, Q("2.3 mm")))
sketch7.addConstraint(Sketcher.Constraint("DistanceX", 12, 1, 11, 1, Q("2.3 mm")))
sketch7.addConstraint(Sketcher.Constraint("Radius", 1, Q("1.500002 mm")))
sketch7.addConstraint(Sketcher.Constraint("DistanceY", -1, 1, 1, 3, Q("13.50188 mm")))
sketch7.addConstraint(Sketcher.Constraint("DistanceX", 5, 3, -1, 1, Q("42.579042 mm")))
pocket6 = body.newObject("PartDesign::Pocket", "Pocket005")
pocket6.Profile = sketch7
pocket6.Length = 25

sketch8 = body.newObject("Sketcher::SketchObject", "Sketch007")
sketch8.AttachmentSupport = (doc.getObject("XZ_Plane"), [""])
sketch8.MapMode = "FlatFace"
sketch8.AttachmentOffset = App.Placement(V(0, 0, 17.638024), App.Rotation())
sketch8.addGeometry(Part.LineSegment(V(-54, 8, 0), V(-54, 2, 0)), False)
sketch8.addGeometry(Part.LineSegment(V(-54, 2, 0), V(-39, 2, 0)), False)
sketch8.addGeometry(Part.LineSegment(V(-39, 2, 0), V(-39, 8, 0)), False)
sketch8.addGeometry(Part.LineSegment(V(-39, 8, 0), V(-54, 8, 0)), False)
sketch8.addConstraint(Sketcher.Constraint("Coincident", 0, 2, 1, 1))
sketch8.addConstraint(Sketcher.Constraint("Coincident", 1, 2, 2, 1))
sketch8.addConstraint(Sketcher.Constraint("Coincident", 2, 2, 3, 1))
sketch8.addConstraint(Sketcher.Constraint("Coincident", 3, 2, 0, 1))
sketch8.addConstraint(Sketcher.Constraint("Vertical", 0))
sketch8.addConstraint(Sketcher.Constraint("Horizontal", 1))
sketch8.addConstraint(Sketcher.Constraint("Vertical", 2))
sketch8.addConstraint(Sketcher.Constraint("Horizontal", 3))
sketch8.addConstraint(Sketcher.Constraint("DistanceY", 0, 2, 0, 1, Q("5 mm")))
sketch8.addConstraint(Sketcher.Constraint("DistanceY", -1, 1, 0, 2, Q("2.5 mm")))
sketch8.addConstraint(Sketcher.Constraint("DistanceX", 1, 1, 1, 2, Q("15.000002 mm")))
sketch8.addConstraint(Sketcher.Constraint("DistanceX", 1, 2, -1, 1, Q("38.718942 mm")))
pocket7 = body.newObject("PartDesign::Pocket", "Pocket006")
pocket7.Profile = sketch8
pocket7.Length = 6

sketch9 = body.newObject("Sketcher::SketchObject", "Sketch008")
sketch9.AttachmentSupport = (doc.getObject("YZ_Plane"), [""])
sketch9.MapMode = "FlatFace"
sketch9.AttachmentOffset = App.Placement(V(0, 0, -18.718942), App.Rotation())
sketch9.addGeometry(Part.LineSegment(V(2, 8, 0), V(2, 2, 0)), False)
sketch9.addGeometry(Part.LineSegment(V(2, 2, 0), V(17, 2, 0)), False)
sketch9.addGeometry(Part.LineSegment(V(17, 2, 0), V(17, 8, 0)), False)
sketch9.addGeometry(Part.LineSegment(V(17, 8, 0), V(2, 8, 0)), False)
sketch9.addConstraint(Sketcher.Constraint("Coincident", 0, 2, 1, 1))
sketch9.addConstraint(Sketcher.Constraint("Coincident", 1, 2, 2, 1))
sketch9.addConstraint(Sketcher.Constraint("Coincident", 2, 2, 3, 1))
sketch9.addConstraint(Sketcher.Constraint("Coincident", 3, 2, 0, 1))
sketch9.addConstraint(Sketcher.Constraint("Vertical", 0))
sketch9.addConstraint(Sketcher.Constraint("Horizontal", 1))
sketch9.addConstraint(Sketcher.Constraint("Vertical", 2))
sketch9.addConstraint(Sketcher.Constraint("Horizontal", 3))
sketch9.addConstraint(Sketcher.Constraint("DistanceX", 1, 1, 1, 2, Q("15 mm")))
sketch9.addConstraint(Sketcher.Constraint("DistanceY", 0, 2, 0, 1, Q("5 mm")))
sketch9.addConstraint(Sketcher.Constraint("DistanceY", -1, 1, 0, 2, Q("2.5 mm")))
sketch9.addConstraint(Sketcher.Constraint("DistanceX", -1, 1, 0, 2, Q("2.361976 mm")))
pocket8 = body.newObject("PartDesign::Pocket", "Pocket007")
pocket8.Profile = sketch9
pocket8.Length = 6

sketch10 = body.newObject("Sketcher::SketchObject", "Sketch009")
sketch10.AttachmentSupport = (doc.getObject("XZ_Plane"), [""])
sketch10.MapMode = "FlatFace"
sketch10.AttachmentOffset = App.Placement(V(0, 0, -37.361976), App.Rotation())
sketch10.addGeometry(Part.LineSegment(V(-39, 8, 0), V(-39, 2, 0)), False)
sketch10.addGeometry(Part.LineSegment(V(-39, 2, 0), V(-54, 2, 0)), False)
sketch10.addGeometry(Part.LineSegment(V(-54, 2, 0), V(-54, 8, 0)), False)
sketch10.addGeometry(Part.LineSegment(V(-54, 8, 0), V(-39, 8, 0)), False)
sketch10.addConstraint(Sketcher.Constraint("Coincident", 0, 2, 1, 1))
sketch10.addConstraint(Sketcher.Constraint("Coincident", 1, 2, 2, 1))
sketch10.addConstraint(Sketcher.Constraint("Coincident", 2, 2, 3, 1))
sketch10.addConstraint(Sketcher.Constraint("Coincident", 3, 2, 0, 1))
sketch10.addConstraint(Sketcher.Constraint("Vertical", 0))
sketch10.addConstraint(Sketcher.Constraint("Horizontal", 1))
sketch10.addConstraint(Sketcher.Constraint("Vertical", 2))
sketch10.addConstraint(Sketcher.Constraint("Horizontal", 3))
sketch10.addConstraint(Sketcher.Constraint("DistanceX", 1, 2, 1, 1, Q("15 mm")))
sketch10.addConstraint(Sketcher.Constraint("DistanceY", 0, 2, 0, 1, Q("5 mm")))
sketch10.addConstraint(Sketcher.Constraint("DistanceY", -1, 1, 0, 2, Q("2.5 mm")))
sketch10.addConstraint(Sketcher.Constraint("DistanceX", 0, 2, -1, 1, Q("38.718942 mm")))
pocket9 = body.newObject("PartDesign::Pocket", "Pocket008")
pocket9.Profile = sketch10
pocket9.Length = 6
pocket9.Reversed = True

sketch11 = body.newObject("Sketcher::SketchObject", "Sketch010")
sketch11.AttachmentSupport = (doc.getObject("YZ_Plane"), [""])
sketch11.MapMode = "FlatFace"
sketch11.AttachmentOffset = App.Placement(V(0, 0, -73.718942), App.Rotation())
sketch11.addGeometry(Part.LineSegment(V(17, 8, 0), V(17, 3, 0)), False)
sketch11.addGeometry(Part.LineSegment(V(17, 3, 0), V(2, 3, 0)), False)
sketch11.addGeometry(Part.LineSegment(V(2, 3, 0), V(2, 8, 0)), False)
sketch11.addGeometry(Part.LineSegment(V(2, 8, 0), V(17, 8, 0)), False)
sketch11.addConstraint(Sketcher.Constraint("Coincident", 0, 2, 1, 1))
sketch11.addConstraint(Sketcher.Constraint("Coincident", 1, 2, 2, 1))
sketch11.addConstraint(Sketcher.Constraint("Coincident", 2, 2, 3, 1))
sketch11.addConstraint(Sketcher.Constraint("Coincident", 3, 2, 0, 1))
sketch11.addConstraint(Sketcher.Constraint("Vertical", 0))
sketch11.addConstraint(Sketcher.Constraint("Horizontal", 1))
sketch11.addConstraint(Sketcher.Constraint("Vertical", 2))
sketch11.addConstraint(Sketcher.Constraint("Horizontal", 3))
sketch11.addConstraint(Sketcher.Constraint("DistanceX", 1, 2, 1, 1, Q("15 mm")))
sketch11.addConstraint(Sketcher.Constraint("DistanceY", 0, 2, 0, 1, Q("5 mm")))
sketch11.addConstraint(Sketcher.Constraint("DistanceX", -1, 1, 0, 2, Q("17.361976 mm")))
sketch11.addConstraint(Sketcher.Constraint("DistanceY", -1, 1, 0, 2, Q("2.617217 mm")))
pocket10 = body.newObject("PartDesign::Pocket", "Pocket009")
pocket10.Profile = sketch11
pocket10.Length = 6
pocket10.Reversed = True

doc.recompute()
